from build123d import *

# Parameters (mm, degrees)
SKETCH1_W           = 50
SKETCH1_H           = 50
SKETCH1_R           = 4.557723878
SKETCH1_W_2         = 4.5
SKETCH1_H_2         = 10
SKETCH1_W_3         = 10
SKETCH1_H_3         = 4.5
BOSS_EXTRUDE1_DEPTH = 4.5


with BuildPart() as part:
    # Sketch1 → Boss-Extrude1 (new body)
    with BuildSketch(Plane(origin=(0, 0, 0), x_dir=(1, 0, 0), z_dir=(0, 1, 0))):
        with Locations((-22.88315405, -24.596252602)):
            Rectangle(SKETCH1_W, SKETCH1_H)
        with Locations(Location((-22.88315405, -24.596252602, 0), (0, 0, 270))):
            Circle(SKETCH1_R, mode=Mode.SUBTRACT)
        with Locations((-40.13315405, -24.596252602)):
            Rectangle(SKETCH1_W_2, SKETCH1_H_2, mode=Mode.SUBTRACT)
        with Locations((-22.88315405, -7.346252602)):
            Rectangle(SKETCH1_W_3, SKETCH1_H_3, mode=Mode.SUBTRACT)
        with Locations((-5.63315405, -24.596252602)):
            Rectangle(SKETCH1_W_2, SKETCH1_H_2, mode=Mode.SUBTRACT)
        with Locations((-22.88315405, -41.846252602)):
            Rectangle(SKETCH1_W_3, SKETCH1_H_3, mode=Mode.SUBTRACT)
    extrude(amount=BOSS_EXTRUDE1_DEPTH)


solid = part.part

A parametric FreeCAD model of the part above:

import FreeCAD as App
import Part
import Sketcher

V = App.Vector
Q = App.Units.Quantity

doc = App.newDocument("Part")
body = doc.addObject("PartDesign::Body", "Body")

sketch1 = doc.addObject("Sketcher::SketchObject", "Sketch")
body.addObject(sketch1)
sketch1.AttachmentSupport = (doc.XZ_Plane, [""])
sketch1.MapMode = "FlatFace"
sketch1.addGeometry([
    Part.LineSegment(V(-47.9, -0.4, 0), V(-47.9, 49.6, 0)),
    Part.LineSegment(V(-47.9, 49.6, 0), V(2.1, 49.6, 0)),
    Part.LineSegment(V(2.1, 49.6, 0), V(2.1, -0.4, 0)),
    Part.LineSegment(V(2.1, -0.4, 0), V(-47.9, -0.4, 0)),
    Part.LineSegment(V(-17.9, 44.1, 0), V(-27.9, 44.1, 0)),
    Part.LineSegment(V(-27.9, 44.1, 0), V(-27.9, 39.6, 0)),
    Part.LineSegment(V(-27.9, 39.6, 0), V(-17.9, 39.6, 0)),
    Part.LineSegment(V(-17.9, 39.6, 0), V(-17.9, 44.1, 0)),
    Part.LineSegment(V(-37.9, 29.6, 0), V(-42.4, 29.6, 0)),
    Part.LineSegment(V(-42.4, 29.6, 0), V(-42.4, 19.6, 0)),
    Part.LineSegment(V(-42.4, 19.6, 0), V(-37.9, 19.6, 0)),
    Part.LineSegment(V(-37.9, 19.6, 0), V(-37.9, 29.6, 0)),
    Part.Circle(V(-22.9, 24.6, 0), V(0, 0, 1), 4.6),
    Part.LineSegment(V(-3.4, 29.6, 0), V(-7.9, 29.6, 0)),
    Part.LineSegment(V(-7.9, 29.6, 0), V(-7.9, 19.6, 0)),
    Part.LineSegment(V(-7.9, 19.6, 0), V(-3.4, 19.6, 0)),
    Part.LineSegment(V(-3.4, 19.6, 0), V(-3.4, 29.6, 0)),
    Part.LineSegment(V(-17.9, 9.6, 0), V(-27.9, 9.6, 0)),
    Part.LineSegment(V(-27.9, 9.6, 0), V(-27.9, 5.1, 0)),
    Part.LineSegment(V(-27.9, 5.1, 0), V(-17.9, 5.1, 0)),
    Part.LineSegment(V(-17.9, 5.1, 0), V(-17.9, 9.6, 0)),
], False)
sketch1.addConstraint([
    Sketcher.Constraint("Coincident", 0, 2, 1, 1),
    Sketcher.Constraint("Coincident", 1, 2, 2, 1),
    Sketcher.Constraint("Coincident", 2, 2, 3, 1),
    Sketcher.Constraint("Coincident", 3, 2, 0, 1),
    Sketcher.Constraint("Coincident", 4, 2, 5, 1),
    Sketcher.Constraint("Coincident", 5, 2, 6, 1),
    Sketcher.Constraint("Coincident", 6, 2, 7, 1),
    Sketcher.Constraint("Coincident", 7, 2, 4, 1),
    Sketcher.Constraint("Coincident", 8, 2, 9, 1),
    Sketcher.Constraint("Coincident", 9, 2, 10, 1),
    Sketcher.Constraint("Coincident", 10, 2, 11, 1),
    Sketcher.Constraint("Coincident", 11, 2, 8, 1),
    Sketcher.Constraint("Coincident", 13, 2, 14, 1),
    Sketcher.Constraint("Coincident", 14, 2, 15, 1),
    Sketcher.Constraint("Coincident", 15, 2, 16, 1),
    Sketcher.Constraint("Coincident", 16, 2, 13, 1),
    Sketcher.Constraint("Coincident", 17, 2, 18, 1),
    Sketcher.Constraint("Coincident", 18, 2, 19, 1),
    Sketcher.Constraint("Coincident", 19, 2, 20, 1),
    Sketcher.Constraint("Coincident", 20, 2, 17, 1),
    Sketcher.Constraint("Vertical", 0),
    Sketcher.Constraint("Horizontal", 1),
    Sketcher.Constraint("Vertical", 2),
    Sketcher.Constraint("Horizontal", 3),
    Sketcher.Constraint("Horizontal", 4),
    Sketcher.Constraint("Vertical", 5),
    Sketcher.Constraint("Horizontal", 6),
    Sketcher.Constraint("Vertical", 7),
    Sketcher.Constraint("Horizontal", 8),
    Sketcher.Constraint("Vertical", 9),
    Sketcher.Constraint("Horizontal", 10),
    Sketcher.Constraint("Vertical", 11),
    Sketcher.Constraint("Horizontal", 13),
    Sketcher.Constraint("Vertical", 14),
    Sketcher.Constraint("Horizontal", 15),
    Sketcher.Constraint("Vertical", 16),
    Sketcher.Constraint("Horizontal", 17),
    Sketcher.Constraint("Vertical", 18),
    Sketcher.Constraint("Horizontal", 19),
    Sketcher.Constraint("Vertical", 20),
    Sketcher.Constraint("Horizontal", 11, 2, 13, 2),
    Sketcher.Constraint("Horizontal", 10, 2, 14, 2),
    Sketcher.Constraint("Vertical", 5, 2, 17, 2),
    Sketcher.Constraint("Vertical", 7, 2, 19, 2),
    Sketcher.Constraint("Equal", 10, 13),
    Sketcher.Constraint("Equal", 3, 0),
    Sketcher.Constraint("Equal", 15, 5),
    Sketcher.Constraint("Equal", 19, 9),
    Sketcher.Constraint("Equal", 7, 18),
    Sketcher.Constraint("DistanceX", 1, 1, 1, 2, Q("50 mm")),
    Sketcher.Constraint("DistanceX", 4, 2, 4, 1, Q("10 mm")),
    Sketcher.Constraint("DistanceX", 8, 2, 8, 1, Q("4.5 mm")),
    Sketcher.Constraint("DistanceX", 0, 2, 12, 3, Q("25 mm")),
    Sketcher.Constraint("DistanceY", 12, 3, 0, 2, Q("25 mm")),
    Sketcher.Constraint("DistanceX", 4, 2, 12, 3, Q("5 mm")),
    Sketcher.Constraint("DistanceY", 12, 3, 5, 2, Q("15 mm")),
    Sketcher.Constraint("DistanceY", 8, 2, 5, 2, Q("10 mm")),
    Sketcher.Constraint("DistanceX", 10, 2, 12, 3, Q("15 mm")),
    Sketcher.Constraint("DistanceX", 6, 2, 13, 2, Q("10 mm")),
    Sketcher.Constraint("DistanceY", 17, 2, 10, 2, Q("10 mm")),
    Sketcher.Constraint("Diameter", 12, Q("9.115448 mm")),
    Sketcher.Constraint("DistanceX", 12, 3, -1, 1, Q("22.883154 mm")),
    Sketcher.Constraint("DistanceY", -1, 1, 12, 3, Q("24.596253 mm")),
])
pad1 = doc.addObject("PartDesign::Pad", "Pad")
body.addObject(pad1)
pad1.Profile = sketch1
pad1.Length = 4.5
pad1.Reversed = True

doc.recompute()
